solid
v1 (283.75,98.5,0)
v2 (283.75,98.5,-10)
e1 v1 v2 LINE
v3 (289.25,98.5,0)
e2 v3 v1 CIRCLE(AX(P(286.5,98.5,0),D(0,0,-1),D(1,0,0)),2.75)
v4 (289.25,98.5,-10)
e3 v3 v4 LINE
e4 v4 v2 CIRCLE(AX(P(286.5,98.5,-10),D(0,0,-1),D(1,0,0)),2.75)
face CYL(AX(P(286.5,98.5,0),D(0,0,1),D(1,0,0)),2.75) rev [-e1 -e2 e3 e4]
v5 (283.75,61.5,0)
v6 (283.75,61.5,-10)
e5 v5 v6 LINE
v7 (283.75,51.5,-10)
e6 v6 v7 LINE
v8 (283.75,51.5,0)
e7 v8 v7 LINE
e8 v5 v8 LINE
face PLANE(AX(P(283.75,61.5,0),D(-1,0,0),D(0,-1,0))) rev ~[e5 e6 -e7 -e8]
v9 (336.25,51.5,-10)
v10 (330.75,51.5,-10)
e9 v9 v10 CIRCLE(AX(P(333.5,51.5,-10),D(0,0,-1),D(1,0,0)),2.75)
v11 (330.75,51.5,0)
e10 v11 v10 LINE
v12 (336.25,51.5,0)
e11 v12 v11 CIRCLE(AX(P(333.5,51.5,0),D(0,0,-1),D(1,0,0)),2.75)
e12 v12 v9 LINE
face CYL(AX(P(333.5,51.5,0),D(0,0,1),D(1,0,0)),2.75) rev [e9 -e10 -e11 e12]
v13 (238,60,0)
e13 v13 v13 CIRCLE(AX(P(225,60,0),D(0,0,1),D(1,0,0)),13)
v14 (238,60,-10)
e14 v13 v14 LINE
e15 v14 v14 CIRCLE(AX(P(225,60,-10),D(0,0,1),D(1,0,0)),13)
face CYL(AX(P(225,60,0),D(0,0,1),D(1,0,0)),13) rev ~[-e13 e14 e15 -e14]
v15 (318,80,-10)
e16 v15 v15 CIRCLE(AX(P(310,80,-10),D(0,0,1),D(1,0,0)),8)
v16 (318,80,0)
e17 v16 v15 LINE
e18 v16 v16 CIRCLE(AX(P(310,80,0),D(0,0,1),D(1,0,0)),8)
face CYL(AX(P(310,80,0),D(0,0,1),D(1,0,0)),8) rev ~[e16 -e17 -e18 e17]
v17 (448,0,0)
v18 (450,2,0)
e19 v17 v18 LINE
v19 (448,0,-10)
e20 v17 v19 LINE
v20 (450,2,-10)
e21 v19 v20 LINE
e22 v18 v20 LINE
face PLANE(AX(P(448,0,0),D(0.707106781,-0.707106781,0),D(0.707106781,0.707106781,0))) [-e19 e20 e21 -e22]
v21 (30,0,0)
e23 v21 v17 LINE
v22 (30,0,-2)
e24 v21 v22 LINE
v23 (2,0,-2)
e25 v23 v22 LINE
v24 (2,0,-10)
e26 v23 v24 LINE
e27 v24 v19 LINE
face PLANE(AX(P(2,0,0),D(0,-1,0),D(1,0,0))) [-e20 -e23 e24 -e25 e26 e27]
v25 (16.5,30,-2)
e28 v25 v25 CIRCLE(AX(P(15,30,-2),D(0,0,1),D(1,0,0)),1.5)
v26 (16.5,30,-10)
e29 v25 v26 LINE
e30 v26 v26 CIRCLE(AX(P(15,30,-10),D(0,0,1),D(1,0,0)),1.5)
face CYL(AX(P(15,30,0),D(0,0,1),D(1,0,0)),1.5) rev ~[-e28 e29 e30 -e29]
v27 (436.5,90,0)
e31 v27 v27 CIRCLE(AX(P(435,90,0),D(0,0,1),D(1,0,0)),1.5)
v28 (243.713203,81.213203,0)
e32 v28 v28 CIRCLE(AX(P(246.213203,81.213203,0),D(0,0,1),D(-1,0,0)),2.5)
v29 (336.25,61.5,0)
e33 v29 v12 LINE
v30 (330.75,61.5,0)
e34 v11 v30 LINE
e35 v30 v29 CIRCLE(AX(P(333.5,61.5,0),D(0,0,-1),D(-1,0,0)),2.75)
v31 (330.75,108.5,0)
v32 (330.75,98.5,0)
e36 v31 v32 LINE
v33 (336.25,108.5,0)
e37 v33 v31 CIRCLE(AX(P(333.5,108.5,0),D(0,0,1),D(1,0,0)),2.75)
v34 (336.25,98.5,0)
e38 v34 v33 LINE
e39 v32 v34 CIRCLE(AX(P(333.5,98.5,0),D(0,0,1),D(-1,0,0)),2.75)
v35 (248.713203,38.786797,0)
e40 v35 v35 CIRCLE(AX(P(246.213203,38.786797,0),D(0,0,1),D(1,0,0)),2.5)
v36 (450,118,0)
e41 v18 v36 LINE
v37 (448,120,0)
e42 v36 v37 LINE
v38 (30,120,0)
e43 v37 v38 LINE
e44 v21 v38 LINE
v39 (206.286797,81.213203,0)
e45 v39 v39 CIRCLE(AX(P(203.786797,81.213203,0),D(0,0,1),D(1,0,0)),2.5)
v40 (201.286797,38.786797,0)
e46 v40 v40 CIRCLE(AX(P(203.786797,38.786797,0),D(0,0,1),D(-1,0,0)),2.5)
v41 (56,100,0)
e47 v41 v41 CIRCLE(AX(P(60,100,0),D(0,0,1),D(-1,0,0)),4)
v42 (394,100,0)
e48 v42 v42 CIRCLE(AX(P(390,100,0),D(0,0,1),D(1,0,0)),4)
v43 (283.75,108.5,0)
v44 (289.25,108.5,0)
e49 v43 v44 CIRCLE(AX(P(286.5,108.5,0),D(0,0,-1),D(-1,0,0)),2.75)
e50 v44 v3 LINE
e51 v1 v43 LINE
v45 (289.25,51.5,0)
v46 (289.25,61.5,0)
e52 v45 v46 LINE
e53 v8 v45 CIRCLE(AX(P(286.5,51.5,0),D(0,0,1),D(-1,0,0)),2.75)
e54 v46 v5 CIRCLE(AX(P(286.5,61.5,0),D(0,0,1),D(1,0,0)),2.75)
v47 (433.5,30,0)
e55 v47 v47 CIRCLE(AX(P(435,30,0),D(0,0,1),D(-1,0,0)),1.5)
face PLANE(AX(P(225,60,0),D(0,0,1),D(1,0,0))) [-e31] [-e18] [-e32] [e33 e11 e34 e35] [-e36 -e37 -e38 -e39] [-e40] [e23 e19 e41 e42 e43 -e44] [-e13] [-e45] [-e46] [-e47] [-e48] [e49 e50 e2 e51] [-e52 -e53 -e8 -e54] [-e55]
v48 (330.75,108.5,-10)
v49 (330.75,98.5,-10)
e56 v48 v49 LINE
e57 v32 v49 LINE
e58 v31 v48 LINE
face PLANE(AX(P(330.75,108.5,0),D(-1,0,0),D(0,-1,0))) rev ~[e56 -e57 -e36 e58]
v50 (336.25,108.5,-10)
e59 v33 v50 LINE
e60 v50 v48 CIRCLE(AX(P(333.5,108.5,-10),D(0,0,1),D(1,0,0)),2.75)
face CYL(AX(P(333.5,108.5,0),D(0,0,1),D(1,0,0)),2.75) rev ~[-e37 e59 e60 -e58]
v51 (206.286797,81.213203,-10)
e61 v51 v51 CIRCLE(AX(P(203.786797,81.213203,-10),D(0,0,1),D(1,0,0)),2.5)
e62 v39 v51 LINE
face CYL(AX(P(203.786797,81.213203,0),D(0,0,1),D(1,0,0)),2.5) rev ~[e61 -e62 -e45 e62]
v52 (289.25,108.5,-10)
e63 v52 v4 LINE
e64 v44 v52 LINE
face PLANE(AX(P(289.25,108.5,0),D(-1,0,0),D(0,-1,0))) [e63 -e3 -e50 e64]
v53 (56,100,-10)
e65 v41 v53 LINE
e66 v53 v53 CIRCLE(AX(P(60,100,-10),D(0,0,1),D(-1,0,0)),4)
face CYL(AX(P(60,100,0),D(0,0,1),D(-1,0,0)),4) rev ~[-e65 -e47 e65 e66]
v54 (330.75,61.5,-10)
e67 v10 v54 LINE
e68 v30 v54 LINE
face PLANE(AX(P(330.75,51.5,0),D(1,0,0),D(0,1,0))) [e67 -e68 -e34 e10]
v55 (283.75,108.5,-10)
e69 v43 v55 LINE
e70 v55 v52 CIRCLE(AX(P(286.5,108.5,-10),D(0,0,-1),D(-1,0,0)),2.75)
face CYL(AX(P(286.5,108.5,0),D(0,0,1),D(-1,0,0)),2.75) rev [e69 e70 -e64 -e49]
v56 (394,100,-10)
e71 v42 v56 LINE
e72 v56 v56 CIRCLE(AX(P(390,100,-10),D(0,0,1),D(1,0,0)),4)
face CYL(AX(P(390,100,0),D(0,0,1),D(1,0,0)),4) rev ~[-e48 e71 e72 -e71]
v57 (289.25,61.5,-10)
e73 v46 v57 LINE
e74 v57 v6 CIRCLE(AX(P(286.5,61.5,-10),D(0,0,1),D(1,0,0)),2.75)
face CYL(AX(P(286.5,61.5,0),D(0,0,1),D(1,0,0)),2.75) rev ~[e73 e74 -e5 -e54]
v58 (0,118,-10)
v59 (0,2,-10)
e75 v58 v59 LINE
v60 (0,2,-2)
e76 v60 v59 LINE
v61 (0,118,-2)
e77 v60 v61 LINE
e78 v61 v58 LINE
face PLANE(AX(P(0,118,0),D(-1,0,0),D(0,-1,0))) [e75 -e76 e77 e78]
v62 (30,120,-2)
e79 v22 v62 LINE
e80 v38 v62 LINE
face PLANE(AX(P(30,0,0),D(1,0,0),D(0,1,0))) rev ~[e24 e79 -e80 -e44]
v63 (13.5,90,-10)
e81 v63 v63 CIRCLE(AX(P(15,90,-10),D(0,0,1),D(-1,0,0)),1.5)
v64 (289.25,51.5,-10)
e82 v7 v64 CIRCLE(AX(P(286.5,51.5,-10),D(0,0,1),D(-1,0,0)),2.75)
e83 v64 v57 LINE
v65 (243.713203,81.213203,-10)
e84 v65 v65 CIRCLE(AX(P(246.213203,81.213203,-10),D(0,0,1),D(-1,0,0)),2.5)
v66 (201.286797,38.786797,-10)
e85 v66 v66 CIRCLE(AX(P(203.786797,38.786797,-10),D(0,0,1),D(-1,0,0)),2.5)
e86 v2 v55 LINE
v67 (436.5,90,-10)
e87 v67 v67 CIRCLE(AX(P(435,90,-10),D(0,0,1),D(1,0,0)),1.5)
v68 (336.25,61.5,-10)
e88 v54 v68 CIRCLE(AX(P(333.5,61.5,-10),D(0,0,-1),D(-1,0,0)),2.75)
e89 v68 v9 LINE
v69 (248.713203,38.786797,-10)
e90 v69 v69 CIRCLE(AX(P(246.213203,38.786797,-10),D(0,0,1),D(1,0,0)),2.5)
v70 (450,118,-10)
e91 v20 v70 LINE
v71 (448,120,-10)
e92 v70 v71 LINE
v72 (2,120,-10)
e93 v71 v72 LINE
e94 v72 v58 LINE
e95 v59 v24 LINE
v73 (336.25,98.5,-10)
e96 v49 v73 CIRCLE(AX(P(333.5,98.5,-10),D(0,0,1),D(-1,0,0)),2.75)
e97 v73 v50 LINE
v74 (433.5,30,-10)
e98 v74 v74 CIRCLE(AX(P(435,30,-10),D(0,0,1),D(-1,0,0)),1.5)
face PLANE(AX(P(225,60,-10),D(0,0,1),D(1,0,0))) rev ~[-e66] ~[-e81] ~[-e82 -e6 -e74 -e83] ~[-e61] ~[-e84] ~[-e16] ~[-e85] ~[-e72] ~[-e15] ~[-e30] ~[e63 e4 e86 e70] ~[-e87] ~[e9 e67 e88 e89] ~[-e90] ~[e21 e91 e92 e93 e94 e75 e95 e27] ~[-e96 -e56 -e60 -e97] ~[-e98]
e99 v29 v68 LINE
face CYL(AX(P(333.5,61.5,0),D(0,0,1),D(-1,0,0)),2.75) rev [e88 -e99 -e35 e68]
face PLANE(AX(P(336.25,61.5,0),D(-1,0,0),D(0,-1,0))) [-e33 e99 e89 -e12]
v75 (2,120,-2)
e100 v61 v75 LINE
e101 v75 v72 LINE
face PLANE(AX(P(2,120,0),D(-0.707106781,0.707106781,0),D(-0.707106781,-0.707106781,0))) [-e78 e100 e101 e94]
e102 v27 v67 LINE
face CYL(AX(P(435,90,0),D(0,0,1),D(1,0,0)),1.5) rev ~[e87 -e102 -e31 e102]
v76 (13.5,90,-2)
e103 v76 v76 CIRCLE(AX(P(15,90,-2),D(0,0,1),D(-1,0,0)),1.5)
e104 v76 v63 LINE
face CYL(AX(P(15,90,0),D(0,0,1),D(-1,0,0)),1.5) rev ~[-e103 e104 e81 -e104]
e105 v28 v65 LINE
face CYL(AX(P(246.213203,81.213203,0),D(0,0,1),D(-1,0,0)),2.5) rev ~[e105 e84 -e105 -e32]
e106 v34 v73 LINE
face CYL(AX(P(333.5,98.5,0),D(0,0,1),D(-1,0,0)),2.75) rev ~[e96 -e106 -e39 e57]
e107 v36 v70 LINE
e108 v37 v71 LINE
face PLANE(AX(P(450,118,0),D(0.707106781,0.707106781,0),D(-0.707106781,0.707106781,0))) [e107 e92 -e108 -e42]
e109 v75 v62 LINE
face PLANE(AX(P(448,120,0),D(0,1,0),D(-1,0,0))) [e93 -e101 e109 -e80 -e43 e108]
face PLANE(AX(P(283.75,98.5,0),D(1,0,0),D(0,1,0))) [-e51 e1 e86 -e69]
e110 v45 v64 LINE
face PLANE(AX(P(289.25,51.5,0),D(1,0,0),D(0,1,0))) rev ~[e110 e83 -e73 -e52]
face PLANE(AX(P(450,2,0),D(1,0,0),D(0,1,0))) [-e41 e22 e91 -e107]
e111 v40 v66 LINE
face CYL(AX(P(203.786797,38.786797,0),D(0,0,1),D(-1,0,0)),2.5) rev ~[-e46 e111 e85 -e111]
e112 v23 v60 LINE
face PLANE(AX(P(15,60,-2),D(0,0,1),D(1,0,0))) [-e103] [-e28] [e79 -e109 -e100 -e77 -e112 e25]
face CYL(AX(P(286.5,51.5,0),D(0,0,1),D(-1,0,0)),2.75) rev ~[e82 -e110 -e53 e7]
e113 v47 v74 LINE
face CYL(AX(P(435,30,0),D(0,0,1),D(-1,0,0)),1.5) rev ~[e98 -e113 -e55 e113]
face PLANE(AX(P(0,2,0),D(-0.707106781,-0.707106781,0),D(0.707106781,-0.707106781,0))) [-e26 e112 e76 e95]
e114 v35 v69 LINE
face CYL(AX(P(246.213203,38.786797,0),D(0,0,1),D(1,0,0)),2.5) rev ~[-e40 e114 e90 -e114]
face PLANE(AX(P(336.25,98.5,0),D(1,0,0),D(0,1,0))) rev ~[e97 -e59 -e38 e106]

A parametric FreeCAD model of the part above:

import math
import FreeCAD as App
import Part
import Sketcher

V = App.Vector

doc = App.newDocument("Part")
body = doc.addObject("PartDesign::Body", "Body")

sketch1 = doc.addObject("Sketcher::SketchObject", "Sketch")
body.addObject(sketch1)
sketch1.AttachmentSupport = (doc.XY_Plane, [""])
sketch1.MapMode = "FlatFace"
sketch1.addGeometry(Part.LineSegment(V(2, 0, 0), V(448, 0, 0)), False)
sketch1.addGeometry(Part.LineSegment(V(448, 0, 0), V(450, 2, 0)), False)
sketch1.addGeometry(Part.LineSegment(V(450, 2, 0), V(450, 118, 0)), False)
sketch1.addGeometry(Part.LineSegment(V(450, 118, 0), V(448, 120, 0)), False)
sketch1.addGeometry(Part.LineSegment(V(448, 120, 0), V(2, 120, 0)), False)
sketch1.addGeometry(Part.LineSegment(V(2, 120, 0), V(0, 118, 0)), False)
sketch1.addGeometry(Part.LineSegment(V(0, 118, 0), V(0, 2, 0)), False)
sketch1.addGeometry(Part.LineSegment(V(0, 2, 0), V(2, 0, 0)), False)
sketch1.addGeometry(Part.Circle(V(15, 30, 0), V(0, 0, 1), 1.5), False)
sketch1.addGeometry(Part.Circle(V(203.8, 38.8, 0), V(0, 0, 1), 2.5), False)
sketch1.addGeometry(Part.Circle(V(246.2, 38.8, 0), V(0, 0, 1), 2.5), False)
sketch1.addGeometry(Part.Circle(V(435, 30, 0), V(0, 0, 1), 1.5), False)
sketch1.addGeometry(Part.LineSegment(V(289.2, 61.5, 0), V(289.2, 51.5, 0)), False)
sketch1.addGeometry(Part.ArcOfCircle(Part.Circle(V(286.5, 51.5, 0), V(0, 0, 1), 2.8), math.radians(180), math.radians(360)), False)
sketch1.addGeometry(Part.LineSegment(V(283.8, 51.5, 0), V(283.8, 61.5, 0)), False)
sketch1.addGeometry(Part.ArcOfCircle(Part.Circle(V(286.5, 61.5, 0), V(0, 0, 1), 2.8), math.radians(0), math.radians(180)), False)
sketch1.addGeometry(Part.Circle(V(225, 60, 0), V(0, 0, 1), 13), False)
sketch1.addGeometry(Part.ArcOfCircle(Part.Circle(V(333.5, 51.5, 0), V(0, 0, 1), 2.8), math.radians(180), math.radians(360)), False)
sketch1.addGeometry(Part.LineSegment(V(330.8, 51.5, 0), V(330.8, 61.5, 0)), False)
sketch1.addGeometry(Part.ArcOfCircle(Part.Circle(V(333.5, 61.5, 0), V(0, 0, 1), 2.8), math.radians(0), math.radians(180)), False)
sketch1.addGeometry(Part.LineSegment(V(336.2, 61.5, 0), V(336.2, 51.5, 0)), False)
sketch1.addGeometry(Part.Circle(V(15, 90, 0), V(0, 0, 1), 1.5), False)
sketch1.addGeometry(Part.Circle(V(203.8, 81.2, 0), V(0, 0, 1), 2.5), False)
sketch1.addGeometry(Part.Circle(V(60, 100, 0), V(0, 0, 1), 4), False)
sketch1.addGeometry(Part.Circle(V(310, 80, 0), V(0, 0, 1), 8), False)
sketch1.addGeometry(Part.Circle(V(246.2, 81.2, 0), V(0, 0, 1), 2.5), False)
sketch1.addGeometry(Part.Circle(V(435, 90, 0), V(0, 0, 1), 1.5), False)
sketch1.addGeometry(Part.ArcOfCircle(Part.Circle(V(286.5, 108.5, 0), V(0, 0, 1), 2.8), math.radians(0), math.radians(180)), False)
sketch1.addGeometry(Part.LineSegment(V(289.2, 108.5, 0), V(289.2, 98.5, 0)), False)
sketch1.addGeometry(Part.ArcOfCircle(Part.Circle(V(286.5, 98.5, 0), V(0, 0, 1), 2.8), math.radians(180), math.radians(360)), False)
sketch1.addGeometry(Part.LineSegment(V(283.8, 98.5, 0), V(283.8, 108.5, 0)), False)
sketch1.addGeometry(Part.Circle(V(390, 100, 0), V(0, 0, 1), 4), False)
sketch1.addGeometry(Part.LineSegment(V(330.8, 98.5, 0), V(330.8, 108.5, 0)), False)
sketch1.addGeometry(Part.ArcOfCircle(Part.Circle(V(333.5, 108.5, 0), V(0, 0, 1), 2.8), math.radians(0), math.radians(180)), False)
sketch1.addGeometry(Part.LineSegment(V(336.2, 108.5, 0), V(336.2, 98.5, 0)), False)
sketch1.addGeometry(Part.ArcOfCircle(Part.Circle(V(333.5, 98.5, 0), V(0, 0, 1), 2.8), math.radians(180), math.radians(360)), False)
sketch1.addConstraint(Sketcher.Constraint("Coincident", 0, 2, 1, 1))
sketch1.addConstraint(Sketcher.Constraint("Coincident", 1, 2, 2, 1))
sketch1.addConstraint(Sketcher.Constraint("Coincident", 2, 2, 3, 1))
sketch1.addConstraint(Sketcher.Constraint("Coincident", 3, 2, 4, 1))
sketch1.addConstraint(Sketcher.Constraint("Coincident", 4, 2, 5, 1))
sketch1.addConstraint(Sketcher.Constraint("Coincident", 5, 2, 6, 1))
sketch1.addConstraint(Sketcher.Constraint("Coincident", 6, 2, 7, 1))
sketch1.addConstraint(Sketcher.Constraint("Coincident", 7, 2, 0, 1))
sketch1.addConstraint(Sketcher.Constraint("Tangent", 12, 2, 13, 2))
sketch1.addConstraint(Sketcher.Constraint("Tangent", 13, 1, 14, 1))
sketch1.addConstraint(Sketcher.Constraint("Tangent", 14, 2, 15, 2))
sketch1.addConstraint(Sketcher.Constraint("Tangent", 15, 1, 12, 1))
sketch1.addConstraint(Sketcher.Constraint("Tangent", 17, 1, 18, 1))
sketch1.addConstraint(Sketcher.Constraint("Tangent", 18, 2, 19, 2))
sketch1.addConstraint(Sketcher.Constraint("Tangent", 19, 1, 20, 1))
sketch1.addConstraint(Sketcher.Constraint("Tangent", 20, 2, 17, 2))
sketch1.addConstraint(Sketcher.Constraint("Tangent", 27, 1, 28, 1))
sketch1.addConstraint(Sketcher.Constraint("Tangent", 28, 2, 29, 2))
sketch1.addConstraint(Sketcher.Constraint("Tangent", 29, 1, 30, 1))
sketch1.addConstraint(Sketcher.Constraint("Tangent", 30, 2, 27, 2))
sketch1.addConstraint(Sketcher.Constraint("Tangent", 32, 2, 33, 2))
sketch1.addConstraint(Sketcher.Constraint("Tangent", 33, 1, 34, 1))
sketch1.addConstraint(Sketcher.Constraint("Tangent", 34, 2, 35, 2))
sketch1.addConstraint(Sketcher.Constraint("Tangent", 35, 1, 32, 1))
sketch1.addConstraint(Sketcher.Constraint("Horizontal", 0))
sketch1.addConstraint(Sketcher.Constraint("Vertical", 2))
sketch1.addConstraint(Sketcher.Constraint("Horizontal", 4))
sketch1.addConstraint(Sketcher.Constraint("Vertical", 6))
sketch1.addConstraint(Sketcher.Constraint("Vertical", 12))
sketch1.addConstraint(Sketcher.Constraint("Vertical", 14))
sketch1.addConstraint(Sketcher.Constraint("Vertical", 18))
sketch1.addConstraint(Sketcher.Constraint("Vertical", 20))
sketch1.addConstraint(Sketcher.Constraint("Vertical", 28))
sketch1.addConstraint(Sketcher.Constraint("Vertical", 30))
sketch1.addConstraint(Sketcher.Constraint("Vertical", 32))
sketch1.addConstraint(Sketcher.Constraint("Vertical", 34))
sketch1.addConstraint(Sketcher.Constraint("Equal", 9, 10))
sketch1.addConstraint(Sketcher.Constraint("Equal", 8, 11))
sketch1.addConstraint(Sketcher.Constraint("Equal", 15, 17))
sketch1.addConstraint(Sketcher.Constraint("Equal", 11, 21))
sketch1.addConstraint(Sketcher.Constraint("Equal", 10, 22))
sketch1.addConstraint(Sketcher.Constraint("Equal", 22, 25))
sketch1.addConstraint(Sketcher.Constraint("Equal", 21, 26))
sketch1.addConstraint(Sketcher.Constraint("Equal", 19, 27))
sketch1.addConstraint(Sketcher.Constraint("Equal", 23, 31))
sketch1.addConstraint(Sketcher.Constraint("Equal", 29, 33))
sketch1.addConstraint(Sketcher.Constraint("PointOnObject", 0, 2, -1))
sketch1.addConstraint(Sketcher.Constraint("PointOnObject", 5, 2, -2))
sketch1.addConstraint(Sketcher.Constraint("Perpendicular", 1, 3))
sketch1.addConstraint(Sketcher.Constraint("Perpendicular", 3, 5))
sketch1.addConstraint(Sketcher.Constraint("Perpendicular", 5, 7))
sketch1.addConstraint(Sketcher.Constraint("Horizontal", 9, 3, 10, 3))
sketch1.addConstraint(Sketcher.Constraint("Horizontal", 8, 3, 11, 3))
sketch1.addConstraint(Sketcher.Constraint("Horizontal", 13, 3, 17, 3))
sketch1.addConstraint(Sketcher.Constraint("Horizontal", 15, 3, 19, 3))
sketch1.addConstraint(Sketcher.Constraint("Horizontal", 22, 3, 25, 3))
sketch1.addConstraint(Sketcher.Constraint("Horizontal", 21, 3, 26, 3))
sketch1.addConstraint(Sketcher.Constraint("Horizontal", 23, 3, 31, 3))
sketch1.addConstraint(Sketcher.Constraint("Horizontal", 27, 3, 33, 3))
sketch1.addConstraint(Sketcher.Constraint("Horizontal", 29, 3, 35, 3))
sketch1.addConstraint(Sketcher.Constraint("Horizontal", 2, 2, 5, 2))
sketch1.addConstraint(Sketcher.Constraint("Horizontal", 1, 2, 6, 2))
sketch1.addConstraint(Sketcher.Constraint("Vertical", 8, 3, 21, 3))
sketch1.addConstraint(Sketcher.Constraint("Vertical", 9, 3, 22, 3))
sketch1.addConstraint(Sketcher.Constraint("Vertical", 10, 3, 25, 3))
sketch1.addConstraint(Sketcher.Constraint("Vertical", 11, 3, 26, 3))
sketch1.addConstraint(Sketcher.Constraint("Vertical", 15, 3, 27, 3))
sketch1.addConstraint(Sketcher.Constraint("Vertical", 19, 3, 33, 3))
sketch1.addConstraint(Sketcher.Constraint("Vertical", 0, 2, 3, 2))
sketch1.addConstraint(Sketcher.Constraint("Vertical", 4, 2, 7, 2))
sketch1.addConstraint(Sketcher.Constraint("Equal", 20, 28))
sketch1.addConstraint(Sketcher.Constraint("Diameter", 8, 3.0))
sketch1.addConstraint(Sketcher.Constraint("Diameter", 9, 5.0))
sketch1.addConstraint(Sketcher.Constraint("Diameter", 16, 26.0))
sketch1.addConstraint(Sketcher.Constraint("Diameter", 23, 8.0))
sketch1.addConstraint(Sketcher.Constraint("Diameter", 24, 16.0))
sketch1.addConstraint(Sketcher.Constraint("DistanceX", 0, 1, 0, 2, 446.0))
sketch1.addConstraint(Sketcher.Constraint("DistanceY", 2, 1, 2, 2, 116.0))
sketch1.addConstraint(Sketcher.Constraint("DistanceY", 12, 2, 12, 1, 10.0))
sketch1.addConstraint(Sketcher.Constraint("Radius", 13, 2.75))
sketch1.addConstraint(Sketcher.Constraint("DistanceX", -1, 1, 8, 3, 15.0))
sketch1.addConstraint(Sketcher.Constraint("DistanceY", -1, 1, 8, 3, 30.0))
sketch1.addConstraint(Sketcher.Constraint("DistanceX", -1, 1, 11, 3, 435.0))
sketch1.addConstraint(Sketcher.Constraint("DistanceX", -1, 1, 16, 3, 225.0))
sketch1.addConstraint(Sketcher.Constraint("DistanceY", -1, 1, 16, 3, 60.0))
sketch1.addConstraint(Sketcher.Constraint("DistanceY", -1, 1, 21, 3, 90.0))
sketch1.addConstraint(Sketcher.Constraint("DistanceX", -1, 1, 23, 3, 60.0))
sketch1.addConstraint(Sketcher.Constraint("DistanceY", -1, 1, 23, 3, 100.0))
sketch1.addConstraint(Sketcher.Constraint("DistanceX", -1, 1, 24, 3, 310.0))
sketch1.addConstraint(Sketcher.Constraint("DistanceY", -1, 1, 24, 3, 80.0))
sketch1.addConstraint(Sketcher.Constraint("DistanceX", -1, 1, 31, 3, 390.0))
sketch1.addConstraint(Sketcher.Constraint("DistanceX", -1, 1, 0, 2, 448.0))
sketch1.addConstraint(Sketcher.Constraint("DistanceX", 13, 3, 17, 3, 47.0))
sketch1.addConstraint(Sketcher.Constraint("DistanceY", 15, 3, 27, 3, 47.0))
sketch1.addConstraint(Sketcher.Constraint("DistanceX", -1, 1, 13, 3, 286.5))
sketch1.addConstraint(Sketcher.Constraint("DistanceY", -1, 1, 13, 3, 51.5))
sketch1.addConstraint(Sketcher.Constraint("DistanceX", -1, 1, 9, 3, 203.786797))
sketch1.addConstraint(Sketcher.Constraint("DistanceY", -1, 1, 9, 3, 38.786797))
sketch1.addConstraint(Sketcher.Constraint("DistanceX", -1, 1, 10, 3, 246.213203))
sketch1.addConstraint(Sketcher.Constraint("DistanceY", -1, 1, 22, 3, 81.213203))
pad1 = doc.addObject("PartDesign::Pad", "Pad")
body.addObject(pad1)
pad1.Profile = sketch1
pad1.Length = 10
pad1.Reversed = True

sketch2 = doc.addObject("Sketcher::SketchObject", "Sketch001")
body.addObject(sketch2)
sketch2.AttachmentSupport = (doc.XY_Plane, [""])
sketch2.MapMode = "FlatFace"
sketch2.addGeometry(Part.LineSegment(V(0, 120, 0), V(0, 0, 0)), False)
sketch2.addGeometry(Part.LineSegment(V(0, 0, 0), V(30, 0, 0)), False)
sketch2.addGeometry(Part.LineSegment(V(30, 0, 0), V(30, 120, 0)), False)
sketch2.addGeometry(Part.LineSegment(V(30, 120, 0), V(0, 120, 0)), False)
sketch2.addGeometry(Part.LineSegment(V(600, 120, 0), V(600, 0, 0)), False)
sketch2.addGeometry(Part.LineSegment(V(600, 0, 0), V(630, 0, 0)), False)
sketch2.addGeometry(Part.LineSegment(V(630, 0, 0), V(630, 120, 0)), False)
sketch2.addGeometry(Part.LineSegment(V(630, 120, 0), V(600, 120, 0)), False)
sketch2.addConstraint(Sketcher.Constraint("Coincident", 0, 2, 1, 1))
sketch2.addConstraint(Sketcher.Constraint("Coincident", 1, 2, 2, 1))
sketch2.addConstraint(Sketcher.Constraint("Coincident", 2, 2, 3, 1))
sketch2.addConstraint(Sketcher.Constraint("Coincident", 3, 2, 0, 1))
sketch2.addConstraint(Sketcher.Constraint("Coincident", 4, 2, 5, 1))
sketch2.addConstraint(Sketcher.Constraint("Coincident", 5, 2, 6, 1))
sketch2.addConstraint(Sketcher.Constraint("Coincident", 6, 2, 7, 1))
sketch2.addConstraint(Sketcher.Constraint("Coincident", 7, 2, 4, 1))
sketch2.addConstraint(Sketcher.Constraint("Vertical", 0))
sketch2.addConstraint(Sketcher.Constraint("Horizontal", 1))
sketch2.addConstraint(Sketcher.Constraint("Vertical", 2))
sketch2.addConstraint(Sketcher.Constraint("Horizontal", 3))
sketch2.addConstraint(Sketcher.Constraint("Vertical", 4))
sketch2.addConstraint(Sketcher.Constraint("Horizontal", 5))
sketch2.addConstraint(Sketcher.Constraint("Vertical", 6))
sketch2.addConstraint(Sketcher.Constraint("Horizontal", 7))
sketch2.addConstraint(Sketcher.Constraint("Coincident", 0, 2, -1, 1))
sketch2.addConstraint(Sketcher.Constraint("PointOnObject", 4, 2, -1))
sketch2.addConstraint(Sketcher.Constraint("Horizontal", 3, 2, 6, 2))
sketch2.addConstraint(Sketcher.Constraint("Equal", 3, 5))
sketch2.addConstraint(Sketcher.Constraint("DistanceX", 1, 1, 1, 2, 30.0))
sketch2.addConstraint(Sketcher.Constraint("DistanceY", 0, 2, 0, 1, 120.0))
sketch2.addConstraint(Sketcher.Constraint("DistanceX", -1, 1, 4, 2, 600.438855))
pocket1 = doc.addObject("PartDesign::Pocket", "Pocket")
body.addObject(pocket1)
pocket1.Profile = sketch2
pocket1.Length = 2

doc.recompute()
